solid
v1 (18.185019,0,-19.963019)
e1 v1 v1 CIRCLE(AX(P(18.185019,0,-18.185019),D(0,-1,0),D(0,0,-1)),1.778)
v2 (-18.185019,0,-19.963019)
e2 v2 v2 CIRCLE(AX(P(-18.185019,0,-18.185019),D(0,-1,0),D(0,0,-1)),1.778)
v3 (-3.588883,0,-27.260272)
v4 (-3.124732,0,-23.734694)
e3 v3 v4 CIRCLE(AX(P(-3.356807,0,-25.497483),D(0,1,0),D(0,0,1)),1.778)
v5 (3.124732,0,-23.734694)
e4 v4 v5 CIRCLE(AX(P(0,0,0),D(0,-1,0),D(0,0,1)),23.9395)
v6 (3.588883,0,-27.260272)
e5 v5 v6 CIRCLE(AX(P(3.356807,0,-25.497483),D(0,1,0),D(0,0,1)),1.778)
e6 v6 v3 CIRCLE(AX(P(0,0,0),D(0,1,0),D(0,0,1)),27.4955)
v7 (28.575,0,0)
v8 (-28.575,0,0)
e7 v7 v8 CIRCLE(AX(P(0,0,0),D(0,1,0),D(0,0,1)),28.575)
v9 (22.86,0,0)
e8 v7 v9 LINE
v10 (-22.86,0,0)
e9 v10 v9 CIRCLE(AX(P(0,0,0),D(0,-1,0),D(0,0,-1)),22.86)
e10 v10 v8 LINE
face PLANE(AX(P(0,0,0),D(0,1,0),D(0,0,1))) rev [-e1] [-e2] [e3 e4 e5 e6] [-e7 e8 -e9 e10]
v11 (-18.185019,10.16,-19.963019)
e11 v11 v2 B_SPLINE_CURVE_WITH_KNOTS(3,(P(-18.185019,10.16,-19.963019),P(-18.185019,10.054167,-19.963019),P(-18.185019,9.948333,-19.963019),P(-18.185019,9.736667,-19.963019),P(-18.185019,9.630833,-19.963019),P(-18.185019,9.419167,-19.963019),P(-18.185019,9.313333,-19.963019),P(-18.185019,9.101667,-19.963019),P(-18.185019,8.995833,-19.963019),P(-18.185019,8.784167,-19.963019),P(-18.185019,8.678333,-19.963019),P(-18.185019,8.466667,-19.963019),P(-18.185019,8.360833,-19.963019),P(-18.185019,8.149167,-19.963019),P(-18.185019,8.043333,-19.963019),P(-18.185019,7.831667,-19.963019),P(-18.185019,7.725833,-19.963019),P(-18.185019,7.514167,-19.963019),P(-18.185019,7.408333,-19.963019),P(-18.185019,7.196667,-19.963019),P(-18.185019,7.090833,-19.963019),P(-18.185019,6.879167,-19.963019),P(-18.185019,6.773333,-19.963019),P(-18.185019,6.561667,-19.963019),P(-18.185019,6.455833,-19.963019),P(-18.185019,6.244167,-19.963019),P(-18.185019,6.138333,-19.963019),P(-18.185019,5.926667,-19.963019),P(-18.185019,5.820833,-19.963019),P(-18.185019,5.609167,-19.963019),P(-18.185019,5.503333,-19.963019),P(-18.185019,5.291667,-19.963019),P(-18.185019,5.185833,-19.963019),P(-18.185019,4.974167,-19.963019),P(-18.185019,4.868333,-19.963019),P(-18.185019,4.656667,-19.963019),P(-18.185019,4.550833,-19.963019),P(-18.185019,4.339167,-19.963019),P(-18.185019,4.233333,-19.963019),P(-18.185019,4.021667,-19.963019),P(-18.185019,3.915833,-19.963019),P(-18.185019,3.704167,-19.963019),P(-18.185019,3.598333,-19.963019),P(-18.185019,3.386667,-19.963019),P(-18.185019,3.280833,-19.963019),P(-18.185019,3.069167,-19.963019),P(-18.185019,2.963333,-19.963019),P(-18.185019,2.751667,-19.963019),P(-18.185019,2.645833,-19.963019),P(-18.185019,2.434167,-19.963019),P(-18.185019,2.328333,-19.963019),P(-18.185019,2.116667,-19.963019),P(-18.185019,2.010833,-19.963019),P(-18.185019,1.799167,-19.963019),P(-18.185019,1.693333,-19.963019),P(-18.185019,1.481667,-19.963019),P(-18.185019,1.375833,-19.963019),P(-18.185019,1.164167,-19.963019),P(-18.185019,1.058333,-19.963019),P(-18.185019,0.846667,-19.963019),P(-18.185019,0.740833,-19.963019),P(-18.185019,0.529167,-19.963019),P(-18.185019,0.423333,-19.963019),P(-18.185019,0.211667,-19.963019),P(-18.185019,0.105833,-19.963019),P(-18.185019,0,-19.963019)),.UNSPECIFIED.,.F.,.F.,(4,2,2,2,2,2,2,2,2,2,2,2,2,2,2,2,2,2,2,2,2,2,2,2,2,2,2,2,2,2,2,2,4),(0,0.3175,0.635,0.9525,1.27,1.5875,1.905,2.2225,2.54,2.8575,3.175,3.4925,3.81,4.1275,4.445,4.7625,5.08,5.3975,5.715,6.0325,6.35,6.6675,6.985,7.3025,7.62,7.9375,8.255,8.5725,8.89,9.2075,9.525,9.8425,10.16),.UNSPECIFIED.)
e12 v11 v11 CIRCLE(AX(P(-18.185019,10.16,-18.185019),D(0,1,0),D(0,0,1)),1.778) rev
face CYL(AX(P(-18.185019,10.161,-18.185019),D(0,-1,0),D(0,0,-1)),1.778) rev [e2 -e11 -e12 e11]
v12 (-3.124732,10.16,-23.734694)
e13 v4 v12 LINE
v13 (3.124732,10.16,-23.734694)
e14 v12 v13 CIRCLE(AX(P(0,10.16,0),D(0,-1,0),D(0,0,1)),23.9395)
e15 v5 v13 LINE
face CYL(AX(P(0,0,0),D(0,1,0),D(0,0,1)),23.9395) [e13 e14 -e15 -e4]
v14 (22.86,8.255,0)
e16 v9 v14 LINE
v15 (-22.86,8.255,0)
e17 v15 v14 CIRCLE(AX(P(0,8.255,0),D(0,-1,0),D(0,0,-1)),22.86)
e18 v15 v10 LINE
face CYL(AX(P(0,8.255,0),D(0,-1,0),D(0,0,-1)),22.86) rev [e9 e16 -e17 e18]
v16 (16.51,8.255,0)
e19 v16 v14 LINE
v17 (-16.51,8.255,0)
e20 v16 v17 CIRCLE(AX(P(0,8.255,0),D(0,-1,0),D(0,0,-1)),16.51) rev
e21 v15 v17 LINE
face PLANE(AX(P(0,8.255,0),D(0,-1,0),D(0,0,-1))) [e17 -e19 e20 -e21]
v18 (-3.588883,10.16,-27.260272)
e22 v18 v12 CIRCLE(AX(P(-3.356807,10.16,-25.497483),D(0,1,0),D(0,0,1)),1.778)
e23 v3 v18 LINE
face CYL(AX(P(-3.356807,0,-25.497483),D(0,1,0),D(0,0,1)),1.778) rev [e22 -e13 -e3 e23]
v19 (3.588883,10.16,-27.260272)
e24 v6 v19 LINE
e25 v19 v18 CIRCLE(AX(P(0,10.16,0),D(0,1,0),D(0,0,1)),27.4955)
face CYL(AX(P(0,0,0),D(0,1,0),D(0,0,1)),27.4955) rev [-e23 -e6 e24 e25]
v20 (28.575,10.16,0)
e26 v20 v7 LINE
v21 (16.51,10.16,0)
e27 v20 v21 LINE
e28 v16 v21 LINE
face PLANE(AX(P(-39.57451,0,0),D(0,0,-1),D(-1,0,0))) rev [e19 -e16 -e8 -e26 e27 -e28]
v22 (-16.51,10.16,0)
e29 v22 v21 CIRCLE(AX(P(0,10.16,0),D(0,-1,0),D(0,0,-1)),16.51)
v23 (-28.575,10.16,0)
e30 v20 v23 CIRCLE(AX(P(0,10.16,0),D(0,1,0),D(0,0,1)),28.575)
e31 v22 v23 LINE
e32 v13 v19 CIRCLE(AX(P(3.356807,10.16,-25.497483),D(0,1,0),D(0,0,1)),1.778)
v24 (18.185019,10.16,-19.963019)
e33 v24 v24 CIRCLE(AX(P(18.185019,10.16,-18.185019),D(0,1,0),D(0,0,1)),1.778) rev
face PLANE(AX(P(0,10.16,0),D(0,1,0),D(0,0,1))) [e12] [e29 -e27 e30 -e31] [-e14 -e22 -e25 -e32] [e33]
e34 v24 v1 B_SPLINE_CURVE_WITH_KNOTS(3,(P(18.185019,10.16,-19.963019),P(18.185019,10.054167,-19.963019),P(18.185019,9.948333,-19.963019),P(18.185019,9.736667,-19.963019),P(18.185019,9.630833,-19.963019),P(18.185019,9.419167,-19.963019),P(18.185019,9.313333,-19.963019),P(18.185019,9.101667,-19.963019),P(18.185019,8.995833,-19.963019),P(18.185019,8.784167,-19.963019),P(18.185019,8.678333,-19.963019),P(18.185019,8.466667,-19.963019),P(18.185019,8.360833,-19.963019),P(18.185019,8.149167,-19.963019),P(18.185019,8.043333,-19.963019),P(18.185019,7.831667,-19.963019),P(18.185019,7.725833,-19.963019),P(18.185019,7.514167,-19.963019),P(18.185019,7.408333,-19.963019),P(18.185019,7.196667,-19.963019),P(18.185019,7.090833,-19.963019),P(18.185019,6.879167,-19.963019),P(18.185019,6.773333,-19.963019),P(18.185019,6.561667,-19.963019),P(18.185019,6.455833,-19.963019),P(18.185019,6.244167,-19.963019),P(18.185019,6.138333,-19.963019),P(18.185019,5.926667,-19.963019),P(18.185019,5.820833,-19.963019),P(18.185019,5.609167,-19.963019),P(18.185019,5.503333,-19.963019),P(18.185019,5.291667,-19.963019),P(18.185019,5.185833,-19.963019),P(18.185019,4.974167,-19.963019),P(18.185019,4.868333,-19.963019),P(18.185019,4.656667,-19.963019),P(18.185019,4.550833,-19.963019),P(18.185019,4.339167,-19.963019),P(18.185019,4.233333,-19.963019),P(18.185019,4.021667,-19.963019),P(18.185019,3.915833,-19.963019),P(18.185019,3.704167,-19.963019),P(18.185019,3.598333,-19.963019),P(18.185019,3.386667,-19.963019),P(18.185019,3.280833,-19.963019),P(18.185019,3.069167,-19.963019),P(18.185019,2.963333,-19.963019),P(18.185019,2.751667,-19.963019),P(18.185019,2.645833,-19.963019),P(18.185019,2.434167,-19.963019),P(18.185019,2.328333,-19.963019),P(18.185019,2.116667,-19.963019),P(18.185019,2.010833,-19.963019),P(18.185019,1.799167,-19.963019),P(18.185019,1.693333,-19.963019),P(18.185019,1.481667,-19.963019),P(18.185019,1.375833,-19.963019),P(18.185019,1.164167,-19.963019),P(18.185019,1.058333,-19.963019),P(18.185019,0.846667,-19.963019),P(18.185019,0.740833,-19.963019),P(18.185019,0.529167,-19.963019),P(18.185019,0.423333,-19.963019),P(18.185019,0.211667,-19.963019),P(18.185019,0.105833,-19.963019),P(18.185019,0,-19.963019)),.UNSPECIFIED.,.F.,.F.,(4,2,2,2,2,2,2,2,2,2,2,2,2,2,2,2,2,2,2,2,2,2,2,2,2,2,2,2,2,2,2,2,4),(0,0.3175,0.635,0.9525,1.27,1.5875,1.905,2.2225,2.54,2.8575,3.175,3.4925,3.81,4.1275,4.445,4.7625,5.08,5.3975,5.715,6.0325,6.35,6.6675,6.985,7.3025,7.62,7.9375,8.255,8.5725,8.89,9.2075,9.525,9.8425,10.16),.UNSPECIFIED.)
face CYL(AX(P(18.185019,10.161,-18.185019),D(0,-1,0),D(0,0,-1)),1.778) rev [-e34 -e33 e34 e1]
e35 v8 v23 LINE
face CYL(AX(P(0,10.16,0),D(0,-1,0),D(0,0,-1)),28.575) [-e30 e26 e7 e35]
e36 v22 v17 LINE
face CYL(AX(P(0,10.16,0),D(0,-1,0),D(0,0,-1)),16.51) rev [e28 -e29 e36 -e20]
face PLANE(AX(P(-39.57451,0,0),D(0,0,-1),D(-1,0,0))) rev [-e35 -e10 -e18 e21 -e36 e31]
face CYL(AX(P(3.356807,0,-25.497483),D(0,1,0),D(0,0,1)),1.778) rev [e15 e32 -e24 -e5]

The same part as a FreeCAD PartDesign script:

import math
import FreeCAD as App
import Part
import Sketcher
Q = App.Units.Quantity

doc = App.newDocument("Part")
body = doc.addObject("PartDesign::Body", "Body")

# Sketch on XZ plane
sketch1 = doc.addObject("Sketcher::SketchObject", "Sketch")
body.addObject(sketch1)
sketch1.AttachmentSupport = (doc.XZ_Plane, [""])
sketch1.MapMode = "FlatFace"
sketch1.addGeometry(Part.Circle(App.Vector(0, 0, 0), App.Vector(0, 0, 1), 28.575), False)
sketch1.addConstraint([
    Sketcher.Constraint("Coincident", 0, 3, -1, 1),
    Sketcher.Constraint("Diameter", 0, Q("2.25 in")),
])
pad1 = doc.addObject("PartDesign::Pad", "Pad")
body.addObject(pad1)
pad1.Profile = sketch1
pad1.Length = Q("0.4 in")
pad1.Reversed = True

# Sketch on XZ plane
sketch2 = doc.addObject("Sketcher::SketchObject", "Sketch001")
body.addObject(sketch2)
sketch2.AttachmentSupport = (doc.XZ_Plane, [""])
sketch2.MapMode = "FlatFace"
sketch2.addGeometry(Part.Circle(App.Vector(0, 0, 0), App.Vector(0, 0, 1), 16.51), False)
sketch2.addConstraint([
    Sketcher.Constraint("Coincident", 0, 3, -1, 1),
    Sketcher.Constraint("Diameter", 0, Q("1.3 in")),
])
pocket1 = doc.addObject("PartDesign::Pocket", "Pocket")
body.addObject(pocket1)
pocket1.Profile = sketch2
pocket1.Type = "ThroughAll"

# Sketch on XZ plane
sketch3 = doc.addObject("Sketcher::SketchObject", "Sketch002")
body.addObject(sketch3)
sketch3.AttachmentSupport = (doc.XZ_Plane, [""])
sketch3.MapMode = "FlatFace"
sketch3.addGeometry(Part.Circle(App.Vector(0, 0, 0), App.Vector(0, 0, 1), 22.86), False)
sketch3.addConstraint([
    Sketcher.Constraint("Coincident", 0, 3, -1, 1),
    Sketcher.Constraint("Diameter", 0, Q("1.8 in")),
])
pocket2 = doc.addObject("PartDesign::Pocket", "Pocket001")
body.addObject(pocket2)
pocket2.Profile = sketch3
pocket2.Length = Q("0.325 in")

# Sketch on XZ plane
sketch4 = doc.addObject("Sketcher::SketchObject", "Sketch003")
body.addObject(sketch4)
sketch4.AttachmentSupport = (doc.XZ_Plane, [""])
sketch4.MapMode = "FlatFace"
sketch4.AttachmentOffset = App.Placement(App.Vector(0, 0, -0.4 * 25.4), App.Rotation())
sketch4.addGeometry([
    Part.LineSegment(App.Vector(-39.57451, 0, 0), App.Vector(-39.57451, 51.352535, 0)),
    Part.LineSegment(App.Vector(-39.57451, 51.352535, 0), App.Vector(49.340605, 51.352535, 0)),
    Part.LineSegment(App.Vector(49.340605, 51.352535, 0), App.Vector(49.340605, 0, 0)),
    Part.LineSegment(App.Vector(49.340605, 0, 0), App.Vector(-39.57451, 0, 0)),
], False)
sketch4.addConstraint([
    Sketcher.Constraint("Coincident", 0, 2, 1, 1),
    Sketcher.Constraint("Coincident", 1, 2, 2, 1),
    Sketcher.Constraint("Coincident", 2, 2, 3, 1),
    Sketcher.Constraint("Coincident", 3, 2, 0, 1),
    Sketcher.Constraint("Vertical", 0),
    Sketcher.Constraint("Horizontal", 1),
    Sketcher.Constraint("Vertical", 2),
    Sketcher.Constraint("Horizontal", 3),
    Sketcher.Constraint("PointOnObject", 2, 2, -1),
    Sketcher.Constraint("DistanceX", 1, 1, 1, 2, Q("88.915116 mm")),
    Sketcher.Constraint("DistanceY", 0, 1, 0, 2, Q("51.352535 mm")),
    Sketcher.Constraint("DistanceX", 0, 2, -1, 1, Q("39.57451 mm")),
])
pocket3 = doc.addObject("PartDesign::Pocket", "Pocket002")
body.addObject(pocket3)
pocket3.Profile = sketch4
pocket3.Type = "ThroughAll"
pocket3.Reversed = True

# Sketch on XZ plane
sketch5 = doc.addObject("Sketcher::SketchObject", "Sketch004")
body.addObject(sketch5)
sketch5.AttachmentSupport = (doc.XZ_Plane, [""])
sketch5.MapMode = "FlatFace"
sketch5.addGeometry(Part.Circle(App.Vector(18.185019, -18.185019, 0), App.Vector(0, 0, 1), 1.778), False)
sketch5.addConstraint([
    Sketcher.Constraint("Diameter", 0, Q("0.14 in")),
    Sketcher.Constraint("DistanceX", -1, 1, 0, 3, Q("18.185019 mm")),
    Sketcher.Constraint("DistanceY", 0, 3, -1, 1, Q("18.185019 mm")),
])
pocket4 = doc.addObject("PartDesign::Pocket", "Pocket003")
body.addObject(pocket4)
pocket4.Profile = sketch5
pocket4.Type = "UpToFirst"

# Sketch on XZ plane
sketch6 = doc.addObject("Sketcher::SketchObject", "Sketch005")
body.addObject(sketch6)
sketch6.AttachmentSupport = (doc.XZ_Plane, [""])
sketch6.MapMode = "FlatFace"
sketch6.addGeometry(Part.Circle(App.Vector(-18.185019, -18.185019, 0), App.Vector(0, 0, 1), 1.778), False)
sketch6.addConstraint([
    Sketcher.Constraint("Diameter", 0, Q("0.14 in")),
    Sketcher.Constraint("DistanceX", 0, 3, -1, 1, Q("18.185019 mm")),
    Sketcher.Constraint("DistanceY", 0, 3, -1, 1, Q("18.185019 mm")),
])
pocket5 = doc.addObject("PartDesign::Pocket", "Pocket004")
body.addObject(pocket5)
pocket5.Profile = sketch6
pocket5.Type = "UpToFirst"

# Sketch on XZ plane
sketch7 = doc.addObject("Sketcher::SketchObject", "Sketch006")
body.addObject(sketch7)
sketch7.AttachmentSupport = (doc.XZ_Plane, [""])
sketch7.MapMode = "FlatFace"
sketch7.AttachmentOffset = App.Placement(App.Vector(0, 0, -0.4 * 25.4), App.Rotation())
sketch7.addGeometry([
    Part.ArcOfCircle(Part.Circle(App.Vector(0, 0, 0), App.Vector(0, 0, 1), 23.9395), math.radians(-97.5), math.radians(-82.5)),
    Part.ArcOfCircle(Part.Circle(App.Vector(3.356807, -25.497483, 0), App.Vector(0, 0, 1), 1.778), math.radians(-82.5), math.radians(97.5)),
    Part.ArcOfCircle(Part.Circle(App.Vector(0, 0, 0), App.Vector(0, 0, 1), 27.4955), math.radians(-97.5), math.radians(-82.5)),
    Part.ArcOfCircle(Part.Circle(App.Vector(-3.356807, -25.497483, 0), App.Vector(0, 0, 1), 1.778), math.radians(82.5), math.radians(262.5)),
], False)
sketch7.addConstraint([
    Sketcher.Constraint("Tangent", 0, 2, 1, 2),
    Sketcher.Constraint("Tangent", 1, 1, 2, 2),
    Sketcher.Constraint("Tangent", 2, 1, 3, 2),
    Sketcher.Constraint("Tangent", 3, 1, 0, 1),
    Sketcher.Constraint("Coincident", 0, 3, -1, 1),
    Sketcher.Constraint("Coincident", 2, 3, -1, 1),
    Sketcher.Constraint("Horizontal", 1, 3, 3, 3),
    Sketcher.Constraint("Radius", 1, Q("0.07 in")),
    Sketcher.Constraint("Radius", 0, Q("0.9425 in")),
    Sketcher.Constraint("DistanceX", -1, 1, 0, 2, Q("3.124732 mm")),
])
pocket6 = doc.addObject("PartDesign::Pocket", "Pocket005")
body.addObject(pocket6)
pocket6.Profile = sketch7
pocket6.Type = "ThroughAll"
pocket6.Reversed = True

doc.recompute()
